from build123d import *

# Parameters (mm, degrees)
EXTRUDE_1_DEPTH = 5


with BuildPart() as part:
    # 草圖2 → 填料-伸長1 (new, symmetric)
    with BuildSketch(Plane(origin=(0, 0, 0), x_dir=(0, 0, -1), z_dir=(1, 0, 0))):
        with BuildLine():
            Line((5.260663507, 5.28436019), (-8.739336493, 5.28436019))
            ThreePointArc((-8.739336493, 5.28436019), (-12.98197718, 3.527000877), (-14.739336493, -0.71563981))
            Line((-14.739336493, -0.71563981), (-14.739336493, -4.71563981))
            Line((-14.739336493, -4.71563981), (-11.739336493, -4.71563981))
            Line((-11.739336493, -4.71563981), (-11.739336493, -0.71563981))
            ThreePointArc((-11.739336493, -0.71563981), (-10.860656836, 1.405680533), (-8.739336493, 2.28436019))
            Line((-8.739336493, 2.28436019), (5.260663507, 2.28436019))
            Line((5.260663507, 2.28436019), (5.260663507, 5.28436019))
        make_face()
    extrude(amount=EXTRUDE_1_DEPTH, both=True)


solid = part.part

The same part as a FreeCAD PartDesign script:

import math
import FreeCAD as App
import Part
import Sketcher
from FreeCAD import Vector

doc = App.newDocument("Part")
body = doc.addObject("PartDesign::Body", "Body")

# Sketch on YZ plane
sketch1 = body.newObject("Sketcher::SketchObject", "Sketch")
sketch1.AttachmentSupport = (doc.getObject("YZ_Plane"), [""])
sketch1.MapMode = "FlatFace"
sketch1.addGeometry(Part.LineSegment(Vector(5.3, -5.3, 0), Vector(5.3, 8.7, 0)), False)
sketch1.addGeometry(Part.ArcOfCircle(Part.Circle(Vector(-0.7, 8.7, 0), Vector(0, 0, 1), 6), math.radians(0), math.radians(90)), False)
sketch1.addGeometry(Part.LineSegment(Vector(-0.7, 14.7, 0), Vector(-4.7, 14.7, 0)), False)
sketch1.addGeometry(Part.LineSegment(Vector(-4.7, 14.7, 0), Vector(-4.7, 11.7, 0)), False)
sketch1.addGeometry(Part.LineSegment(Vector(-4.7, 11.7, 0), Vector(-0.7, 11.7, 0)), False)
sketch1.addGeometry(Part.ArcOfCircle(Part.Circle(Vector(-0.7, 8.7, 0), Vector(0, 0, 1), 3), math.radians(0), math.radians(90)), False)
sketch1.addGeometry(Part.LineSegment(Vector(2.3, 8.7, 0), Vector(2.3, -5.3, 0)), False)
sketch1.addGeometry(Part.LineSegment(Vector(2.3, -5.3, 0), Vector(5.3, -5.3, 0)), False)
sketch1.addConstraint(Sketcher.Constraint("Tangent", 0, 2, 1, 1))
sketch1.addConstraint(Sketcher.Constraint("Tangent", 1, 2, 2, 1))
sketch1.addConstraint(Sketcher.Constraint("Coincident", 2, 2, 3, 1))
sketch1.addConstraint(Sketcher.Constraint("Coincident", 3, 2, 4, 1))
sketch1.addConstraint(Sketcher.Constraint("Tangent", 4, 2, 5, 2))
sketch1.addConstraint(Sketcher.Constraint("Tangent", 5, 1, 6, 1))
sketch1.addConstraint(Sketcher.Constraint("Coincident", 6, 2, 7, 1))
sketch1.addConstraint(Sketcher.Constraint("Coincident", 7, 2, 0, 1))
sketch1.addConstraint(Sketcher.Constraint("Vertical", 0))
sketch1.addConstraint(Sketcher.Constraint("Horizontal", 2))
sketch1.addConstraint(Sketcher.Constraint("Vertical", 3))
sketch1.addConstraint(Sketcher.Constraint("Horizontal", 4))
sketch1.addConstraint(Sketcher.Constraint("Vertical", 6))
sketch1.addConstraint(Sketcher.Constraint("Horizontal", 7))
sketch1.addConstraint(Sketcher.Constraint("Coincident", 5, 3, 1, 3))
sketch1.addConstraint(Sketcher.Constraint("Radius", 1, 6.0))
sketch1.addConstraint(Sketcher.Constraint("Radius", 5, 3.0))
sketch1.addConstraint(Sketcher.Constraint("DistanceX", 2, 2, 2, 1, 4.0))
sketch1.addConstraint(Sketcher.Constraint("DistanceY", 0, 1, 0, 2, 14.0))
sketch1.addConstraint(Sketcher.Constraint("DistanceX", 1, 3, -1, 1, 0.71564))
sketch1.addConstraint(Sketcher.Constraint("DistanceY", -1, 1, 1, 3, 8.739336))
pad1 = body.newObject("PartDesign::Pad", "Pad")
pad1.Profile = sketch1
pad1.Length = 10
pad1.Midplane = True

doc.recompute()
